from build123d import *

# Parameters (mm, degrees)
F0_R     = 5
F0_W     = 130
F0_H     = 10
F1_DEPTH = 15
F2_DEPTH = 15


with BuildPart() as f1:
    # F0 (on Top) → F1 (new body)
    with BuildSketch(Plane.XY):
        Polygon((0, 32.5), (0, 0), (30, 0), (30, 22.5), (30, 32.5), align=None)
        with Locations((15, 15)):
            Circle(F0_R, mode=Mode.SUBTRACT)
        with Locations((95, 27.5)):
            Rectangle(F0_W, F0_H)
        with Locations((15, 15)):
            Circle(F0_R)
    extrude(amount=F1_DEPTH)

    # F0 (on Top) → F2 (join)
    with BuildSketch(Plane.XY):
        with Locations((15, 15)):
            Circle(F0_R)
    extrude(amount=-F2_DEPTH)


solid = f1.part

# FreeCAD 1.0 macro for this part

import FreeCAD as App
import Part
import Sketcher
from FreeCAD import Vector
Q = App.Units.Quantity

doc = App.newDocument("Part")
body = doc.addObject("PartDesign::Body", "Body")

sketch1 = body.newObject("Sketcher::SketchObject", "Sketch")
sketch1.AttachmentSupport = (doc.getObject("XY_Plane"), [""])
sketch1.MapMode = "FlatFace"
sketch1.addGeometry(Part.LineSegment(Vector(0, 32.5, 0), Vector(0, 0, 0)), False)
sketch1.addGeometry(Part.LineSegment(Vector(0, 0, 0), Vector(30, 0, 0)), False)
sketch1.addGeometry(Part.LineSegment(Vector(30, 0, 0), Vector(30, 22.5, 0)), False)
sketch1.addGeometry(Part.LineSegment(Vector(30, 22.5, 0), Vector(160, 22.5, 0)), False)
sketch1.addGeometry(Part.LineSegment(Vector(160, 22.5, 0), Vector(160, 32.5, 0)), False)
sketch1.addGeometry(Part.LineSegment(Vector(160, 32.5, 0), Vector(0, 32.5, 0)), False)
sketch1.addConstraint(Sketcher.Constraint("Coincident", 0, 2, 1, 1))
sketch1.addConstraint(Sketcher.Constraint("Coincident", 1, 2, 2, 1))
sketch1.addConstraint(Sketcher.Constraint("Coincident", 2, 2, 3, 1))
sketch1.addConstraint(Sketcher.Constraint("Coincident", 3, 2, 4, 1))
sketch1.addConstraint(Sketcher.Constraint("Coincident", 4, 2, 5, 1))
sketch1.addConstraint(Sketcher.Constraint("Coincident", 5, 2, 0, 1))
sketch1.addConstraint(Sketcher.Constraint("Vertical", 0))
sketch1.addConstraint(Sketcher.Constraint("Horizontal", 1))
sketch1.addConstraint(Sketcher.Constraint("Vertical", 2))
sketch1.addConstraint(Sketcher.Constraint("Horizontal", 3))
sketch1.addConstraint(Sketcher.Constraint("Vertical", 4))
sketch1.addConstraint(Sketcher.Constraint("Horizontal", 5))
sketch1.addConstraint(Sketcher.Constraint("Coincident", 0, 2, -1, 1))
sketch1.addConstraint(Sketcher.Constraint("DistanceX", 1, 1, 1, 2, Q("30 mm")))
sketch1.addConstraint(Sketcher.Constraint("DistanceX", 3, 1, 3, 2, Q("130 mm")))
sketch1.addConstraint(Sketcher.Constraint("DistanceY", 4, 1, 4, 2, Q("10 mm")))
sketch1.addConstraint(Sketcher.Constraint("DistanceY", 0, 2, 0, 1, Q("32.5 mm")))
pad1 = body.newObject("PartDesign::Pad", "Pad")
pad1.Profile = sketch1
pad1.Length = 15

sketch2 = body.newObject("Sketcher::SketchObject", "Sketch001")
sketch2.AttachmentSupport = (doc.getObject("XY_Plane"), [""])
sketch2.MapMode = "FlatFace"
sketch2.addGeometry(Part.Circle(Vector(15, 15, 0), Vector(0, 0, 1), 5), False)
sketch2.addConstraint(Sketcher.Constraint("Diameter", 0, Q("10 mm")))
sketch2.addConstraint(Sketcher.Constraint("DistanceX", -1, 1, 0, 3, Q("15 mm")))
sketch2.addConstraint(Sketcher.Constraint("DistanceY", -1, 1, 0, 3, Q("15 mm")))
pad2 = body.newObject("PartDesign::Pad", "Pad001")
pad2.Profile = sketch2
pad2.Length = 15
pad2.Reversed = True

doc.recompute()
